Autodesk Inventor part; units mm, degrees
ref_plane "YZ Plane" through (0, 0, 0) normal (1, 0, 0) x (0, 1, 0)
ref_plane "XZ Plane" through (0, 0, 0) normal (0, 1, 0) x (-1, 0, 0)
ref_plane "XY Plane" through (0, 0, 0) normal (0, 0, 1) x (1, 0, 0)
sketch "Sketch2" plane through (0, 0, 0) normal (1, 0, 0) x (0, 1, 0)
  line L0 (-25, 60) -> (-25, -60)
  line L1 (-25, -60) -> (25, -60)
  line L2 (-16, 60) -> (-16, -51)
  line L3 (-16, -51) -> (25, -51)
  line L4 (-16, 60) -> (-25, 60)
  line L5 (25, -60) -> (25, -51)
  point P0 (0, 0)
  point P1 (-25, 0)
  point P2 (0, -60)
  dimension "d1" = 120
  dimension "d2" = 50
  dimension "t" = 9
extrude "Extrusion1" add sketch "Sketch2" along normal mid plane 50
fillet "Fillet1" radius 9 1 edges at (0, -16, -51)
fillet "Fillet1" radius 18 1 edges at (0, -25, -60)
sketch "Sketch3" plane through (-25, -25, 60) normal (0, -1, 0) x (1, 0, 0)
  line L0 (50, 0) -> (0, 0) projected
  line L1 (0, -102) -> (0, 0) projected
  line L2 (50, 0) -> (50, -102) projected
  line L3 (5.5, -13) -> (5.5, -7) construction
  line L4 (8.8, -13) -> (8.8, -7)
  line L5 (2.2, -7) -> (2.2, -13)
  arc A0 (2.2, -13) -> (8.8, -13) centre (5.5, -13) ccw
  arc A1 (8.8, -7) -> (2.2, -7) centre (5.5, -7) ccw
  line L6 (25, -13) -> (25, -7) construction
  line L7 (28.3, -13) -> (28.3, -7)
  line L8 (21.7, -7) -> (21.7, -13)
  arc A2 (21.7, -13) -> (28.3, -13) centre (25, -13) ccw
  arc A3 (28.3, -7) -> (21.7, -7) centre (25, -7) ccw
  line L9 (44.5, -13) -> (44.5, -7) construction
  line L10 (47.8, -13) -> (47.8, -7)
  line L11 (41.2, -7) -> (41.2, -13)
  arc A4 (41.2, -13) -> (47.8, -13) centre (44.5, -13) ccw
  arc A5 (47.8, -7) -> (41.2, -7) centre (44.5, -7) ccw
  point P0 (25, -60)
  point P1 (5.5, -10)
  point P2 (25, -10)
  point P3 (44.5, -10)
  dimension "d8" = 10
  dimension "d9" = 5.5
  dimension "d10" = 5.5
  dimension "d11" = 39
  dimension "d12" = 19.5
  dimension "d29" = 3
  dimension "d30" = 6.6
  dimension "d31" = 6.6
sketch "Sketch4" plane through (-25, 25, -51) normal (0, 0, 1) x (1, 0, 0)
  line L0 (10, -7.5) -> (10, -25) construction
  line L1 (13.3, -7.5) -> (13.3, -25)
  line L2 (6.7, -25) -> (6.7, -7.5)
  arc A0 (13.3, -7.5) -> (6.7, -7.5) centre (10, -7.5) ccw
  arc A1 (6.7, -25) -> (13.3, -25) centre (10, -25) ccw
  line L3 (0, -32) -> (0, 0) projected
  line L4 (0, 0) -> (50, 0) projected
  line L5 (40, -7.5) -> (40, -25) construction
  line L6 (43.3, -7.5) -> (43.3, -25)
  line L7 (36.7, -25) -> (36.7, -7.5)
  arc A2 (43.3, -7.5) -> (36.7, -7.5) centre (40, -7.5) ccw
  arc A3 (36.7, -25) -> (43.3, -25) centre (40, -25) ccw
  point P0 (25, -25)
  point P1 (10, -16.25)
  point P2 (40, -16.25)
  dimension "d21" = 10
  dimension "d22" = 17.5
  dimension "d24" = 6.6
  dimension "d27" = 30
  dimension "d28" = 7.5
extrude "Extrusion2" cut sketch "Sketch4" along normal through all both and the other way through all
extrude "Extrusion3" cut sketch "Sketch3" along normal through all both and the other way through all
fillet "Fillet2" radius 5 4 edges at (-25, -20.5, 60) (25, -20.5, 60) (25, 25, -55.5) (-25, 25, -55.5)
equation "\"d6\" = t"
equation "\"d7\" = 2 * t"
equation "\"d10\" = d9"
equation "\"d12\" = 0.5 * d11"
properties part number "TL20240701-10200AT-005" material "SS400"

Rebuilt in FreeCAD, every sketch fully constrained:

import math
import FreeCAD as App
import Part
import Sketcher

V = App.Vector
Q = App.Units.Quantity


def edges_at(feature, points):
    """Names of the edges that pass closest to the given points."""
    edges = feature.Shape.Edges
    near = lambda p: min(range(len(edges)), key=lambda i: edges[i].distToShape(Part.Vertex(*p))[0])
    return sorted({f"Edge{near(p) + 1}" for p in points})


def add_polygon(sketch, points):
    """Adds a closed chain of lines whose ends are joined by coincident constraints."""
    first, n = sketch.GeometryCount, len(points)
    for a, b in zip(points, points[1:] + points[:1]):
        sketch.addGeometry(Part.LineSegment(App.Vector(*a, 0), App.Vector(*b, 0)), False)
    for i in range(n):
        sketch.addConstraint(Sketcher.Constraint("Coincident", first + i, 2, first + (i + 1) % n, 1))

doc = App.newDocument("Part")
body = doc.addObject("PartDesign::Body", "Body")

# Sketch on YZ plane
sketch1 = body.newObject("Sketcher::SketchObject", "Sketch")
sketch1.AttachmentSupport = (doc.getObject("YZ_Plane"), [""])
sketch1.MapMode = "FlatFace"
add_polygon(sketch1, [(-16, 60), (-25, 60), (-25, -60), (25, -60), (25, -51), (-16, -51)])  # lines 0-5
sketch1.addConstraint([
    Sketcher.Constraint("Horizontal", 0),
    Sketcher.Constraint("Vertical", 1),
    Sketcher.Constraint("Horizontal", 2),
    Sketcher.Constraint("Vertical", 3),
    Sketcher.Constraint("Horizontal", 4),
    Sketcher.Constraint("Vertical", 5),
    Sketcher.Constraint("Symmetric", 0, 2, 2, 2, -1, 1),
    Sketcher.Constraint("Equal", 0, 3),
    Sketcher.Constraint("DistanceX", 0, 2, 0, 1, Q("9 mm")),
    Sketcher.Constraint("DistanceX", 2, 1, 2, 2, Q("50 mm")),
    Sketcher.Constraint("DistanceY", 1, 2, 1, 1, Q("120 mm")),
])
pad1 = body.newObject("PartDesign::Pad", "Pad")
pad1.Profile = sketch1
pad1.Length = 50
pad1.Midplane = True
doc.recompute()

fillet = body.newObject("PartDesign::Fillet", "Fillet")
fillet.Base = (pad1, edges_at(pad1, [(0, -16, -51)]))
fillet.Radius = 9
doc.recompute()

fillet2 = body.newObject("PartDesign::Fillet", "Fillet001")
fillet2.Base = (fillet, edges_at(fillet, [(0, -25, -60)]))
fillet2.Radius = 18

# Sketch on XY plane
sketch2 = body.newObject("Sketcher::SketchObject", "Sketch001")
sketch2.AttachmentSupport = (doc.getObject("XY_Plane"), [""])
sketch2.MapMode = "FlatFace"
sketch2.AttachmentOffset = App.Placement(V(0, 0, -51), App.Rotation())
sketch2.addGeometry([
    Part.LineSegment(V(-11.7, 0, 0), V(-11.7, 17.5, 0)),  # 0
    Part.ArcOfCircle(Part.Circle(V(-15, 17.5, 0), V(0, 0, 1), 3.3), math.radians(0), math.radians(180)),  # 1
    Part.LineSegment(V(-18.3, 17.5, 0), V(-18.3, 0, 0)),  # 2
    Part.ArcOfCircle(Part.Circle(V(-15, 0, 0), V(0, 0, 1), 3.3), math.radians(180), math.radians(360)),  # 3
    Part.LineSegment(V(18.3, 0, 0), V(18.3, 17.5, 0)),  # 4
    Part.ArcOfCircle(Part.Circle(V(15, 17.5, 0), V(0, 0, 1), 3.3), math.radians(0), math.radians(180)),  # 5
    Part.LineSegment(V(11.7, 17.5, 0), V(11.7, 0, 0)),  # 6
    Part.ArcOfCircle(Part.Circle(V(15, 0, 0), V(0, 0, 1), 3.3), math.radians(180), math.radians(360)),  # 7
], False)
sketch2.addConstraint([
    Sketcher.Constraint("Tangent", 0, 2, 1, 1),
    Sketcher.Constraint("Tangent", 1, 2, 2, 1),
    Sketcher.Constraint("Tangent", 2, 2, 3, 1),
    Sketcher.Constraint("Tangent", 3, 2, 0, 1),
    Sketcher.Constraint("Tangent", 4, 2, 5, 1),
    Sketcher.Constraint("Tangent", 5, 2, 6, 1),
    Sketcher.Constraint("Tangent", 6, 2, 7, 1),
    Sketcher.Constraint("Tangent", 7, 2, 4, 1),
    Sketcher.Constraint("Vertical", 0),
    Sketcher.Constraint("Vertical", 2),
    Sketcher.Constraint("Vertical", 4),
    Sketcher.Constraint("Vertical", 6),
    Sketcher.Constraint("Equal", 3, 5),
    Sketcher.Constraint("Symmetric", 3, 3, 7, 3, -1, 1),
    Sketcher.Constraint("PointOnObject", 3, 3, -1),
    Sketcher.Constraint("Horizontal", 1, 3, 5, 3),
    Sketcher.Constraint("Radius", 1, Q("3.3 mm")),
    Sketcher.Constraint("DistanceY", 0, 1, 0, 2, Q("17.5 mm")),
    Sketcher.Constraint("DistanceX", 1, 3, 5, 3, Q("30 mm")),
])
pocket1 = body.newObject("PartDesign::Pocket", "Pocket")
pocket1.Profile = sketch2
pocket1.Type = "ThroughAll"
pocket1.Midplane = True

# Sketch on XZ plane
sketch3 = body.newObject("Sketcher::SketchObject", "Sketch002")
sketch3.AttachmentSupport = (doc.getObject("XZ_Plane"), [""])
sketch3.MapMode = "FlatFace"
sketch3.AttachmentOffset = App.Placement(V(0, 0, 25), App.Rotation())
sketch3.addGeometry([
    Part.ArcOfCircle(Part.Circle(V(-19.5, 47, 0), V(0, 0, 1), 3.3), math.radians(180), math.radians(360)),  # 0
    Part.LineSegment(V(-16.2, 47, 0), V(-16.2, 53, 0)),  # 1
    Part.ArcOfCircle(Part.Circle(V(-19.5, 53, 0), V(0, 0, 1), 3.3), math.radians(0), math.radians(180)),  # 2
    Part.LineSegment(V(-22.8, 53, 0), V(-22.8, 47, 0)),  # 3
    Part.ArcOfCircle(Part.Circle(V(0, 47, 0), V(0, 0, 1), 3.3), math.radians(180), math.radians(360)),  # 4
    Part.LineSegment(V(3.3, 47, 0), V(3.3, 53, 0)),  # 5
    Part.ArcOfCircle(Part.Circle(V(0, 53, 0), V(0, 0, 1), 3.3), math.radians(0), math.radians(180)),  # 6
    Part.LineSegment(V(-3.3, 53, 0), V(-3.3, 47, 0)),  # 7
    Part.ArcOfCircle(Part.Circle(V(19.5, 47, 0), V(0, 0, 1), 3.3), math.radians(180), math.radians(360)),  # 8
    Part.LineSegment(V(22.8, 47, 0), V(22.8, 53, 0)),  # 9
    Part.ArcOfCircle(Part.Circle(V(19.5, 53, 0), V(0, 0, 1), 3.3), math.radians(0), math.radians(180)),  # 10
    Part.LineSegment(V(16.2, 53, 0), V(16.2, 47, 0)),  # 11
], False)
sketch3.addConstraint([
    Sketcher.Constraint("Tangent", 0, 2, 1, 1),
    Sketcher.Constraint("Tangent", 1, 2, 2, 1),
    Sketcher.Constraint("Tangent", 2, 2, 3, 1),
    Sketcher.Constraint("Tangent", 3, 2, 0, 1),
    Sketcher.Constraint("Tangent", 4, 2, 5, 1),
    Sketcher.Constraint("Tangent", 5, 2, 6, 1),
    Sketcher.Constraint("Tangent", 6, 2, 7, 1),
    Sketcher.Constraint("Tangent", 7, 2, 4, 1),
    Sketcher.Constraint("Tangent", 8, 2, 9, 1),
    Sketcher.Constraint("Tangent", 9, 2, 10, 1),
    Sketcher.Constraint("Tangent", 10, 2, 11, 1),
    Sketcher.Constraint("Tangent", 11, 2, 8, 1),
    Sketcher.Constraint("Vertical", 1),
    Sketcher.Constraint("Vertical", 3),
    Sketcher.Constraint("Vertical", 5),
    Sketcher.Constraint("Vertical", 7),
    Sketcher.Constraint("Vertical", 9),
    Sketcher.Constraint("Vertical", 11),
    Sketcher.Constraint("Equal", 2, 4),
    Sketcher.Constraint("Equal", 6, 8),
    Sketcher.Constraint("Symmetric", 0, 3, 8, 3, -2),
    Sketcher.Constraint("PointOnObject", 4, 3, -2),
    Sketcher.Constraint("Horizontal", 0, 3, 4, 3),
    Sketcher.Constraint("Horizontal", 2, 3, 6, 3),
    Sketcher.Constraint("Horizontal", 6, 3, 10, 3),
    Sketcher.Constraint("Radius", 0, Q("3.3 mm")),
    Sketcher.Constraint("DistanceX", 0, 3, 8, 3, Q("39 mm")),
    Sketcher.Constraint("DistanceY", 1, 1, 1, 2, Q("6 mm")),
    Sketcher.Constraint("DistanceY", -1, 1, 0, 3, Q("47 mm")),
])
pocket2 = body.newObject("PartDesign::Pocket", "Pocket001")
pocket2.Profile = sketch3
pocket2.Type = "ThroughAll"
pocket2.Midplane = True
doc.recompute()

fillet3 = body.newObject("PartDesign::Fillet", "Fillet002")
fillet3.Base = (pocket2, edges_at(pocket2, [
    (-25, -20.5, 60),
    (25, -20.5, 60),
    (25, 25, -55.5),
    (-25, 25, -55.5),
]))
fillet3.Radius = 5

doc.recompute()
